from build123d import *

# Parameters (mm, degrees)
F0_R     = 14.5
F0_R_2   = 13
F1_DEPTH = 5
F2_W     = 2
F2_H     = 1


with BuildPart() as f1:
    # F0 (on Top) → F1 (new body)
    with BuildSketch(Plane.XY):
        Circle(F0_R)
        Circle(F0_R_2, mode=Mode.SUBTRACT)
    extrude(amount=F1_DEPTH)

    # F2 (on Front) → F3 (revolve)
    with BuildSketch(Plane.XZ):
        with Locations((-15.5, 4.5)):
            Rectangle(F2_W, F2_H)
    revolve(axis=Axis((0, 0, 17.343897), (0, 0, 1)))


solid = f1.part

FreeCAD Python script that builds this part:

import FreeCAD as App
import Part
import Sketcher
Q = App.Units.Quantity


def add_polygon(sketch, points):
    """Adds a closed chain of lines whose ends are joined by coincident constraints."""
    first, n = sketch.GeometryCount, len(points)
    for a, b in zip(points, points[1:] + points[:1]):
        sketch.addGeometry(Part.LineSegment(App.Vector(*a, 0), App.Vector(*b, 0)), False)
    for i in range(n):
        sketch.addConstraint(Sketcher.Constraint("Coincident", first + i, 2, first + (i + 1) % n, 1))

doc = App.newDocument("Part")
params = doc.addObject("Spreadsheet::Sheet", "Params")
for row, (alias, value) in enumerate([
    ("sketch1_diameter", "29 mm"),
    ("sketch1_diameter2", "26 mm"),
    ("pad1_length", "5 mm"),
    ("sketch2_width", "2 mm"),
    ("sketch2_height", "1 mm"),
    ("revolution_angle", "360 deg"),
], start=1):
    params.set(f"A{row}", alias)
    params.set(f"B{row}", "=" + value)
    params.setAlias(f"B{row}", alias)

body = doc.addObject("PartDesign::Body", "Body")

# Sketch on XY plane
sketch1 = body.newObject("Sketcher::SketchObject", "Sketch")
sketch1.AttachmentSupport = (doc.getObject("XY_Plane"), [""])
sketch1.MapMode = "FlatFace"
sketch1.addGeometry([
    Part.Circle(App.Vector(0, 0, 0), App.Vector(0, 0, 1), 14),
    Part.Circle(App.Vector(0, 0, 0), App.Vector(0, 0, 1), 13),
], False)
sketch1.addConstraint([
    Sketcher.Constraint("Coincident", 0, 3, -1, 1),
    Sketcher.Constraint("Coincident", 1, 3, -1, 1),
    Sketcher.Constraint("Diameter", 0, Q("29 mm")),
    Sketcher.Constraint("Diameter", 1, Q("26 mm")),
])
sketch1.setExpression("Constraints[2]", "Params.sketch1_diameter")
sketch1.setExpression("Constraints[3]", "Params.sketch1_diameter2")
pad1 = body.newObject("PartDesign::Pad", "Pad")
pad1.Profile = sketch1
pad1.setExpression("Length", "Params.pad1_length")

# Sketch on XZ plane
sketch2 = body.newObject("Sketcher::SketchObject", "Sketch001")
sketch2.AttachmentSupport = (doc.getObject("XZ_Plane"), [""])
sketch2.MapMode = "FlatFace"
add_polygon(sketch2, [(-16.5, 5), (-16.5, 4), (-14.5, 4), (-14.5, 5)])  # lines 0-3
sketch2.addConstraint([
    Sketcher.Constraint("Vertical", 0),
    Sketcher.Constraint("Horizontal", 1),
    Sketcher.Constraint("Vertical", 2),
    Sketcher.Constraint("Horizontal", 3),
    Sketcher.Constraint("DistanceX", 1, 1, 1, 2, Q("2 mm")),
    Sketcher.Constraint("DistanceY", 0, 2, 0, 1, Q("1 mm")),
    Sketcher.Constraint("DistanceY", -1, 1, 0, 2, Q("4 mm")),
    Sketcher.Constraint("DistanceX", 0, 2, -1, 1, Q("16.5 mm")),
])
sketch2.setExpression("Constraints[8]", "Params.sketch2_width")
sketch2.setExpression("Constraints[9]", "Params.sketch2_height")
revolution = body.newObject("PartDesign::Revolution", "Revolution")
revolution.Profile = sketch2
revolution.ReferenceAxis = (sketch2, ["V_Axis"])
revolution.setExpression("Angle", "Params.revolution_angle")

doc.recompute()
